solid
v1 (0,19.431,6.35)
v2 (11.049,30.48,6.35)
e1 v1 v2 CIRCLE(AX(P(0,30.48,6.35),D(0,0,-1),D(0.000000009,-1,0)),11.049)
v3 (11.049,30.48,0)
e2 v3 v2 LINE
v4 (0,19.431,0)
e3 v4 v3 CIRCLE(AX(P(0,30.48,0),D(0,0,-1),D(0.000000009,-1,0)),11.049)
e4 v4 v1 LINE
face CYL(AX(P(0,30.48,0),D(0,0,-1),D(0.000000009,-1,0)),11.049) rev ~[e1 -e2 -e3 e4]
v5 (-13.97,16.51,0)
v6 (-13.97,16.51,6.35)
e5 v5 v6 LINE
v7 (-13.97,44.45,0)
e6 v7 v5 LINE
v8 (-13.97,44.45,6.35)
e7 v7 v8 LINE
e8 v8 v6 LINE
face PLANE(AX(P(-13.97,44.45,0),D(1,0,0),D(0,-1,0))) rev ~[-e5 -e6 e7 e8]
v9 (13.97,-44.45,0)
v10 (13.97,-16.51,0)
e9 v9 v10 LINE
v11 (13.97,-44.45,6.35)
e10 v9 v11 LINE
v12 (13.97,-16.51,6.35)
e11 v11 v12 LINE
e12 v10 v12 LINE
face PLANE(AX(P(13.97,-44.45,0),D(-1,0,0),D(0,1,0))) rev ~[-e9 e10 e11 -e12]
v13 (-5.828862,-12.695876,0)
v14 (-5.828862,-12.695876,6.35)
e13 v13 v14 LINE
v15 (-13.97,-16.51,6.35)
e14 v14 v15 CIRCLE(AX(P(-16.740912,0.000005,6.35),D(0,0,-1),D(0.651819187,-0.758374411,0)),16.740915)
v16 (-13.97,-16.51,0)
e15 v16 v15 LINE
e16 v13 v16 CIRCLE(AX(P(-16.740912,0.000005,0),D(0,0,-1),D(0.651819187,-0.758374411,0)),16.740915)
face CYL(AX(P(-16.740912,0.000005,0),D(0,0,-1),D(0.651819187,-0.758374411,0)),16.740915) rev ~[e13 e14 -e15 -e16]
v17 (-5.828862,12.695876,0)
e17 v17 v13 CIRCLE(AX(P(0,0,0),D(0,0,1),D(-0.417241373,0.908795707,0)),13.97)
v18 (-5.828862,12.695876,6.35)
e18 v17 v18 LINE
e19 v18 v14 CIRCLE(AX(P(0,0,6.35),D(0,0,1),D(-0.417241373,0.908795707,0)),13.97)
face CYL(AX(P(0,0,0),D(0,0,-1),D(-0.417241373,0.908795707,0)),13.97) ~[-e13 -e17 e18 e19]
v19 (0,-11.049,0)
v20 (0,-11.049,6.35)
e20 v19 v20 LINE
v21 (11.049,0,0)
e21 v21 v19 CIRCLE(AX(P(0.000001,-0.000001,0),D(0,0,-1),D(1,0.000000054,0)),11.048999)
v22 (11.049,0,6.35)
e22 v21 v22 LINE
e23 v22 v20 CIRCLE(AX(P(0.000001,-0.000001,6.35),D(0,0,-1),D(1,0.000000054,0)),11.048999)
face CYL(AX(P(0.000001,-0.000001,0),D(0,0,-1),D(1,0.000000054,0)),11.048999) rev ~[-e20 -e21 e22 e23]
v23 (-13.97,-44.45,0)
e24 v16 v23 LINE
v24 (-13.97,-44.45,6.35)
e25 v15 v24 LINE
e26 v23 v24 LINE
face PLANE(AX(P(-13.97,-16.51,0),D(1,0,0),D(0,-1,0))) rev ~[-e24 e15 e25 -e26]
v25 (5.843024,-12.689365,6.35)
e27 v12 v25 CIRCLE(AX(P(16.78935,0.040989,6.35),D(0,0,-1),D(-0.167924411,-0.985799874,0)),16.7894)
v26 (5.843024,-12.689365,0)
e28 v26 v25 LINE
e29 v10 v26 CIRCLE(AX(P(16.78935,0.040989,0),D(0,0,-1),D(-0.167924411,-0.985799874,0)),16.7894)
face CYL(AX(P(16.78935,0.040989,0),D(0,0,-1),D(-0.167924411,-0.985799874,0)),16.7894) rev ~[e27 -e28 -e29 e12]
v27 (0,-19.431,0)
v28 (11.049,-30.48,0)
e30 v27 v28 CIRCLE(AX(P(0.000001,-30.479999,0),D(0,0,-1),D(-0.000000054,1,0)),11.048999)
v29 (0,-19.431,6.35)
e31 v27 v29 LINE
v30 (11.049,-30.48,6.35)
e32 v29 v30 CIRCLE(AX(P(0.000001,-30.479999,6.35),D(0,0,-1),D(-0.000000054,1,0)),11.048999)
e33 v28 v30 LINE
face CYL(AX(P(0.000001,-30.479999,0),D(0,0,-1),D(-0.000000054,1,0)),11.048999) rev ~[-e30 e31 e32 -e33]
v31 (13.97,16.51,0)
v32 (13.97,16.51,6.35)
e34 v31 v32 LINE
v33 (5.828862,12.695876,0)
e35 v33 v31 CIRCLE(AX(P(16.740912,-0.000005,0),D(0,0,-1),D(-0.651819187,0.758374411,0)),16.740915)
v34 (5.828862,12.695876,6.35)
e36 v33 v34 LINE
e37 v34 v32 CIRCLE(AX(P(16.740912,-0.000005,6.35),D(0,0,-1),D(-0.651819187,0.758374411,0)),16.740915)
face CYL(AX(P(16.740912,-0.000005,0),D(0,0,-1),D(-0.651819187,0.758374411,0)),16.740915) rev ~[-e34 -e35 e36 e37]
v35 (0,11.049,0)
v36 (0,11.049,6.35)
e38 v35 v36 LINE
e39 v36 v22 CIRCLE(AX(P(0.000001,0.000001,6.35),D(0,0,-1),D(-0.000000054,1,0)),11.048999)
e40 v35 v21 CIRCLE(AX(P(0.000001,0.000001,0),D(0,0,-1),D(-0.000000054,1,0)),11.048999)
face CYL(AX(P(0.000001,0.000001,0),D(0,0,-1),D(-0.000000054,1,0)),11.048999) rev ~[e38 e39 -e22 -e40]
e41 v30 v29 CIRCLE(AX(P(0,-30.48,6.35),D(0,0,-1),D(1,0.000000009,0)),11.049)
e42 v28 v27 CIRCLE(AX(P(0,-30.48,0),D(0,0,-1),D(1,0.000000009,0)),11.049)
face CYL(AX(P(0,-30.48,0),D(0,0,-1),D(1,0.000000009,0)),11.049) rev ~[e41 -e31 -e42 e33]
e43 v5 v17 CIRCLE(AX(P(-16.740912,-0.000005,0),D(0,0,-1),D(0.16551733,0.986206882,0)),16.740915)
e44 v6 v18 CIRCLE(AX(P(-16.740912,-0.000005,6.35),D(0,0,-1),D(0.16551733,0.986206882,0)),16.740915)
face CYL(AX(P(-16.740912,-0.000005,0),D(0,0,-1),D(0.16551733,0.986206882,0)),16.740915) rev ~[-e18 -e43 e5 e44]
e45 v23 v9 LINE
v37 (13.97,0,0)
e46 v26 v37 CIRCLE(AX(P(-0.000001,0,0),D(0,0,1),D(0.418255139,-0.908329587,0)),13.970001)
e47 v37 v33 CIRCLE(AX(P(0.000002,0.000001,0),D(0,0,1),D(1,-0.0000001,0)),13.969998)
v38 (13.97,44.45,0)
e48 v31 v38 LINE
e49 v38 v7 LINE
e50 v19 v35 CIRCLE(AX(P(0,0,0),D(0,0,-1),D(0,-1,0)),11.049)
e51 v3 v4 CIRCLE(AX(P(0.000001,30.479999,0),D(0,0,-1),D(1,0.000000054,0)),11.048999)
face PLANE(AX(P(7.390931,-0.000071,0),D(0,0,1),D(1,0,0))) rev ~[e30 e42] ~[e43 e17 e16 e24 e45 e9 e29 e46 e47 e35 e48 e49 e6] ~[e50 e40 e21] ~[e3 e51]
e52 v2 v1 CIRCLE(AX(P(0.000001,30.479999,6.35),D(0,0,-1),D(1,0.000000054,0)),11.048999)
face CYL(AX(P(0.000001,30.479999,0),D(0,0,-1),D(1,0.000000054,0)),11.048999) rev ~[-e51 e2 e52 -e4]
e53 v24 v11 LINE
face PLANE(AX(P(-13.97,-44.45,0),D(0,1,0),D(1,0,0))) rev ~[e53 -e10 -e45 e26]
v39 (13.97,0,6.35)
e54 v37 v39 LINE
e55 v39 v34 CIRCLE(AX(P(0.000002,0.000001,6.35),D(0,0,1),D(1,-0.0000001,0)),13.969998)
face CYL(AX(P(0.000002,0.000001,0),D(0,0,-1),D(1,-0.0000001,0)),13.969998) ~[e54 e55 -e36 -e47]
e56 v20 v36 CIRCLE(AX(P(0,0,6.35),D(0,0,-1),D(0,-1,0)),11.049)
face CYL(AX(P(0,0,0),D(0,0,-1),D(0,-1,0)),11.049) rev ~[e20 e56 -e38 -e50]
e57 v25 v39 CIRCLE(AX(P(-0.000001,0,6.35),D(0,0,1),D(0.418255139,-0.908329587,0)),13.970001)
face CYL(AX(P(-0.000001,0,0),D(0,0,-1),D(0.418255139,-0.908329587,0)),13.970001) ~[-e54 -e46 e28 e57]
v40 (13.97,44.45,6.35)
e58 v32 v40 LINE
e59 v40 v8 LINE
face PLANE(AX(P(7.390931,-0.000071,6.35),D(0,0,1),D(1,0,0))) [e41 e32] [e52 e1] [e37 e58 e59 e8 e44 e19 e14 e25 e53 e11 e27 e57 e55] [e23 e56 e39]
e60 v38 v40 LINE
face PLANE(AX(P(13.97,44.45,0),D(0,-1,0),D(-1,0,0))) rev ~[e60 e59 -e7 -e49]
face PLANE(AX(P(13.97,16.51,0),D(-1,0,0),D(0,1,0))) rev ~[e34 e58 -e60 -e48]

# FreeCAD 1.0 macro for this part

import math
import FreeCAD as App
import Part
import Sketcher
from FreeCAD import Vector
Q = App.Units.Quantity

doc = App.newDocument("Part")
body = doc.addObject("PartDesign::Body", "Body")

# Sketch on XY plane
sketch1 = body.newObject("Sketcher::SketchObject", "Sketch")
sketch1.AttachmentSupport = (doc.getObject("XY_Plane"), [""])
sketch1.MapMode = "FlatFace"
sketch1.addGeometry([
    Part.ArcOfCircle(Part.Circle(Vector(0, 0, 0), Vector(0, 0, 1), 14), math.radians(-65), math.radians(0)),  # 0
    Part.ArcOfCircle(Part.Circle(Vector(0, 0, 0), Vector(0, 0, 1), 14), math.radians(0), math.radians(65)),  # 1
    Part.ArcOfCircle(Part.Circle(Vector(17, 0, 0), Vector(0, 0, 1), 17), math.radians(100), math.radians(131)),  # 2
    Part.LineSegment(Vector(14, 17, 0), Vector(14, 44, 0)),  # 3
    Part.LineSegment(Vector(14, 44, 0), Vector(-14, 44, 0)),  # 4
    Part.LineSegment(Vector(-14, 44, 0), Vector(-14, 17, 0)),  # 5
    Part.ArcOfCircle(Part.Circle(Vector(-17, 0, 0), Vector(0, 0, 1), 17), math.radians(49), math.radians(80)),  # 6
    Part.ArcOfCircle(Part.Circle(Vector(0, 0, 0), Vector(0, 0, 1), 14), math.radians(115), math.radians(245)),  # 7
    Part.ArcOfCircle(Part.Circle(Vector(-17, 0, 0), Vector(0, 0, 1), 17), math.radians(-80), math.radians(-49)),  # 8
    Part.LineSegment(Vector(-14, -17, 0), Vector(-14, -44, 0)),  # 9
    Part.LineSegment(Vector(-14, -44, 0), Vector(14, -44, 0)),  # 10
    Part.LineSegment(Vector(14, -44, 0), Vector(14, -17, 0)),  # 11
    Part.ArcOfCircle(Part.Circle(Vector(17, 0, 0), Vector(0, 0, 1), 17), math.radians(-131), math.radians(-100)),  # 12
    Part.ArcOfCircle(Part.Circle(Vector(0, -30, 0), Vector(0, 0, 1), 11), math.radians(0), math.radians(90)),  # 13
    Part.ArcOfCircle(Part.Circle(Vector(0, -30, 0), Vector(0, 0, 1), 11), math.radians(90), math.radians(360)),  # 14
    Part.ArcOfCircle(Part.Circle(Vector(0, 30, 0), Vector(0, 0, 1), 11), math.radians(0), math.radians(270)),  # 15
    Part.ArcOfCircle(Part.Circle(Vector(0, 30, 0), Vector(0, 0, 1), 11), math.radians(-90), math.radians(0)),  # 16
    Part.ArcOfCircle(Part.Circle(Vector(0, 0, 0), Vector(0, 0, 1), 11), math.radians(0), math.radians(90)),  # 17
    Part.ArcOfCircle(Part.Circle(Vector(0, 0, 0), Vector(0, 0, 1), 11), math.radians(-90), math.radians(0)),  # 18
    Part.ArcOfCircle(Part.Circle(Vector(0, 0, 0), Vector(0, 0, 1), 11), math.radians(90), math.radians(270)),  # 19
], False)
sketch1.addConstraint([
    Sketcher.Constraint("Tangent", 0, 2, 1, 1),
    Sketcher.Constraint("Coincident", 1, 2, 2, 2),
    Sketcher.Constraint("Coincident", 2, 1, 3, 1),
    Sketcher.Constraint("Coincident", 3, 2, 4, 1),
    Sketcher.Constraint("Coincident", 4, 2, 5, 1),
    Sketcher.Constraint("Coincident", 5, 2, 6, 2),
    Sketcher.Constraint("Coincident", 6, 1, 7, 1),
    Sketcher.Constraint("Coincident", 7, 2, 8, 2),
    Sketcher.Constraint("Coincident", 8, 1, 9, 1),
    Sketcher.Constraint("Coincident", 9, 2, 10, 1),
    Sketcher.Constraint("Coincident", 10, 2, 11, 1),
    Sketcher.Constraint("Coincident", 11, 2, 12, 2),
    Sketcher.Constraint("Coincident", 12, 1, 0, 1),
    Sketcher.Constraint("Tangent", 13, 1, 14, 2),
    Sketcher.Constraint("Coincident", 14, 1, 13, 2),
    Sketcher.Constraint("Tangent", 15, 1, 16, 2),
    Sketcher.Constraint("Coincident", 16, 1, 15, 2),
    Sketcher.Constraint("Tangent", 17, 1, 18, 2),
    Sketcher.Constraint("Tangent", 18, 1, 19, 2),
    Sketcher.Constraint("Tangent", 19, 1, 17, 2),
    Sketcher.Constraint("Vertical", 3),
    Sketcher.Constraint("Horizontal", 4),
    Sketcher.Constraint("Vertical", 5),
    Sketcher.Constraint("Vertical", 9),
    Sketcher.Constraint("Horizontal", 10),
    Sketcher.Constraint("Vertical", 11),
    Sketcher.Constraint("Coincident", 0, 3, -1, 1),
    Sketcher.Constraint("Coincident", 7, 3, -1, 1),
    Sketcher.Constraint("Coincident", 17, 3, -1, 1),
    Sketcher.Constraint("Equal", 2, 6),
    Sketcher.Constraint("Equal", 0, 7),
    Sketcher.Constraint("Equal", 6, 8),
    Sketcher.Constraint("Equal", 14, 15),
    Sketcher.Constraint("Equal", 16, 17),
    Sketcher.Constraint("Symmetric", 2, 3, 8, 3, -1, 1),
    Sketcher.Constraint("Symmetric", 13, 3, 15, 3, -1, 1),
    Sketcher.Constraint("Symmetric", 3, 2, 9, 2, -1, 1),
    Sketcher.Constraint("Symmetric", 5, 2, 11, 2, -1, 1),
    Sketcher.Constraint("Symmetric", 2, 3, 6, 3, -2),
    Sketcher.Constraint("Symmetric", 13, 1, 15, 1, -1),
    Sketcher.Constraint("PointOnObject", 0, 2, -1),
    Sketcher.Constraint("PointOnObject", 14, 1, -2),
    Sketcher.Constraint("PointOnObject", 16, 1, -2),
    Sketcher.Constraint("PointOnObject", 17, 1, -1),
    Sketcher.Constraint("PointOnObject", 18, 1, -2),
    Sketcher.Constraint("PointOnObject", 19, 1, -2),
    Sketcher.Constraint("Horizontal", 2, 1, 5, 2),
    Sketcher.Constraint("Horizontal", 1, 2, 6, 1),
    Sketcher.Constraint("Horizontal", 14, 3, 13, 1),
    Sketcher.Constraint("Vertical", 0, 2, 2, 1),
    Sketcher.Constraint("Equal", 10, 3),
    Sketcher.Constraint("Radius", 0, Q("0.55 in")),
    Sketcher.Constraint("Radius", 12, Q("0.661 in")),
    Sketcher.Constraint("Radius", 13, Q("0.435 in")),
    Sketcher.Constraint("DistanceY", 13, 3, -1, 1, Q("1.2 in")),
    Sketcher.Constraint("DistanceY", -1, 1, 2, 1, Q("0.65 in")),
    Sketcher.Constraint("Radius", 2, Q("16.740915 mm")),
    Sketcher.Constraint("DistanceX", -1, 1, 2, 3, Q("16.740912 mm")),
    Sketcher.Constraint("DistanceX", -1, 1, 12, 3, Q("16.78935 mm")),
])
pad1 = body.newObject("PartDesign::Pad", "Pad")
pad1.Profile = sketch1
pad1.Length = Q("0.25 in")

doc.recompute()
